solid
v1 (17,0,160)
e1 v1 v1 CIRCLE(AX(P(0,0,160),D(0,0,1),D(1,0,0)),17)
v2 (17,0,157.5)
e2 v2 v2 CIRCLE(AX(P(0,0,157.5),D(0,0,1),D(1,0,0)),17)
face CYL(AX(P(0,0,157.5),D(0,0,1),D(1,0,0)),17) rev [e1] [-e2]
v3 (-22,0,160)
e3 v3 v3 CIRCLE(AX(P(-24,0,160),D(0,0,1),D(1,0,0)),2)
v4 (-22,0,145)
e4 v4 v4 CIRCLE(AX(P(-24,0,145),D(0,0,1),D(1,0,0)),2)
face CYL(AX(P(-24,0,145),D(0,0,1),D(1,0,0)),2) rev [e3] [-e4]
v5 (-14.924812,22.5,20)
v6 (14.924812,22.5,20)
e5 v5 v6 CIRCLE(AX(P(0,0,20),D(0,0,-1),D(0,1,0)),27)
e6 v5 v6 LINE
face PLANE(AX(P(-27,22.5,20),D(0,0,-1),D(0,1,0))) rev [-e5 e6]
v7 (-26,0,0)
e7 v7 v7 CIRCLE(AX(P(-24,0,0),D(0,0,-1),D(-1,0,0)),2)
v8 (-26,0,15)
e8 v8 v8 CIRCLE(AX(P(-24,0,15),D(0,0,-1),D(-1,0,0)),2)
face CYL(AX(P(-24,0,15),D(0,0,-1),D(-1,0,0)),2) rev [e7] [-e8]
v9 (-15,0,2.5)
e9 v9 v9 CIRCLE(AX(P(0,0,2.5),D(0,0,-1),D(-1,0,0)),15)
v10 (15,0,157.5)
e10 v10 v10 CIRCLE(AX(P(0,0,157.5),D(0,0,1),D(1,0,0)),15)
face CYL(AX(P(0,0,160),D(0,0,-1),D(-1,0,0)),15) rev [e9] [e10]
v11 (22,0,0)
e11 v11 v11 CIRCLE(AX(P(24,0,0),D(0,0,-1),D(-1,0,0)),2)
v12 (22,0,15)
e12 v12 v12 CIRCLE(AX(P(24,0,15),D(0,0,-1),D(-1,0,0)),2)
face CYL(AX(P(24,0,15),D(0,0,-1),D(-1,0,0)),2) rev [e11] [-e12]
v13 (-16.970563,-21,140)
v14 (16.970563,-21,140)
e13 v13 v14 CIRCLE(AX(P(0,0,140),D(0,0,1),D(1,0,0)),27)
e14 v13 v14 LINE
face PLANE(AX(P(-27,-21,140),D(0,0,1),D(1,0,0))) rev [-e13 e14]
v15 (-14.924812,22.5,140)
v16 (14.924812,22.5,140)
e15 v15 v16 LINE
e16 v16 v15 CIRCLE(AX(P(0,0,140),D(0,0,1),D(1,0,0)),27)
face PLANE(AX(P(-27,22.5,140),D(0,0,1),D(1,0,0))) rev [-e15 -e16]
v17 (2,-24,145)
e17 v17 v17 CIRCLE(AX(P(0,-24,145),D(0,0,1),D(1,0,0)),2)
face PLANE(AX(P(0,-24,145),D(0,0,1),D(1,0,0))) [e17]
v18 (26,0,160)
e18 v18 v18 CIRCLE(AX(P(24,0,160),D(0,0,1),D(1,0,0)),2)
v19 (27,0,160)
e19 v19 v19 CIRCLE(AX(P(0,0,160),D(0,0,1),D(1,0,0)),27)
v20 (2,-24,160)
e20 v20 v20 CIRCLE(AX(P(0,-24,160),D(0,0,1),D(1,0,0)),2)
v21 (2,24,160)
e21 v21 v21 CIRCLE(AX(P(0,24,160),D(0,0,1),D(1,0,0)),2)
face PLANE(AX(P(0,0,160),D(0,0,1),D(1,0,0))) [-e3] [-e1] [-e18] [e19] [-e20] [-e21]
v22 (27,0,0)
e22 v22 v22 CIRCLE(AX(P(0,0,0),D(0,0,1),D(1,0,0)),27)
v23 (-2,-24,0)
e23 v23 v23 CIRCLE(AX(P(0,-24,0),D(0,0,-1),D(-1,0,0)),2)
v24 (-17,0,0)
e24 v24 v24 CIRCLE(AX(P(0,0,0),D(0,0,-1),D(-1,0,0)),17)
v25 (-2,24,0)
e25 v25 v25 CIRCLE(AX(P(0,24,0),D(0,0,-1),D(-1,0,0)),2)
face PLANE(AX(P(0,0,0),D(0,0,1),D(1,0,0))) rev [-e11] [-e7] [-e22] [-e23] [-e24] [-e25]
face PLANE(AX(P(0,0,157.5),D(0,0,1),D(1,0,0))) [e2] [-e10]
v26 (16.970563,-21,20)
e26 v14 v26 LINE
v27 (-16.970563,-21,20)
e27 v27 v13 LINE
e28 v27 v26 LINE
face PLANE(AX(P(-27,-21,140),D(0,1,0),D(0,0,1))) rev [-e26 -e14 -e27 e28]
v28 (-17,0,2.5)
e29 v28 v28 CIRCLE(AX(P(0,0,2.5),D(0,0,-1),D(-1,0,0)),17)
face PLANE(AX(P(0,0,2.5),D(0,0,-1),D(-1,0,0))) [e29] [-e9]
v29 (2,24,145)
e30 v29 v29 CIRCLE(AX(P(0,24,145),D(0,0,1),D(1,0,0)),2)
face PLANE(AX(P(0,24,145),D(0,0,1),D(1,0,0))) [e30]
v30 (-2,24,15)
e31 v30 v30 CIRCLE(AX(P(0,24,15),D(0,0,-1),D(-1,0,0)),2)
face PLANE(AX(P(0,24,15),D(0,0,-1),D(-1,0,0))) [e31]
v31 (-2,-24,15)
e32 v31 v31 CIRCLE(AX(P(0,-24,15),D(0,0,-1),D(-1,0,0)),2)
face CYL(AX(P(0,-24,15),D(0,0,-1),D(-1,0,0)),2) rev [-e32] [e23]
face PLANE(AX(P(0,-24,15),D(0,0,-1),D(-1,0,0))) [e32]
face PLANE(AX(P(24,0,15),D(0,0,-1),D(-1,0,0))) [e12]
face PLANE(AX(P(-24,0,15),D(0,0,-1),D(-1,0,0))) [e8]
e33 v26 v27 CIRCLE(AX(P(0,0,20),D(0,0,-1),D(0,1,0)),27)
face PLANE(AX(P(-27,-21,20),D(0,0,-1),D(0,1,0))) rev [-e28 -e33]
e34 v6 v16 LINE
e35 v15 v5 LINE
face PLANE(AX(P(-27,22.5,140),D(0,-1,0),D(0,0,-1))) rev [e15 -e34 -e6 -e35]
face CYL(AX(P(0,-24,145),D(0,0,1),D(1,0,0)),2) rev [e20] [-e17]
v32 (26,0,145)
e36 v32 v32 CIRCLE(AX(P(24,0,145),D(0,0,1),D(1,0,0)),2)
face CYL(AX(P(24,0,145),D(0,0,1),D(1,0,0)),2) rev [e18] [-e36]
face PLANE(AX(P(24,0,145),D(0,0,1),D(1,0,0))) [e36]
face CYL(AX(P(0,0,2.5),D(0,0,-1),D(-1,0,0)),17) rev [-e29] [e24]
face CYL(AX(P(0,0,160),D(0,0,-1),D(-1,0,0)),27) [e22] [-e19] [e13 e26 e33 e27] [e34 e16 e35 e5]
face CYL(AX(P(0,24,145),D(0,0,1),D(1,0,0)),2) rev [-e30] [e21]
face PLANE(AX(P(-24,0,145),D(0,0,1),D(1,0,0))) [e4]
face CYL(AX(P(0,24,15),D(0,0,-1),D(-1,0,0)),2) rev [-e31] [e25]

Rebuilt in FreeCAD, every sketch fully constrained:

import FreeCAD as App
import Part
import Sketcher
Q = App.Units.Quantity

doc = App.newDocument("Part")
body = doc.addObject("PartDesign::Body", "Body")

sketch1 = doc.addObject("Sketcher::SketchObject", "Sketch")
body.addObject(sketch1)
sketch1.AttachmentSupport = (doc.XY_Plane, [""])
sketch1.MapMode = "FlatFace"
sketch1.addGeometry(Part.Circle(App.Vector(0, 0, 0), App.Vector(0, 0, 1), 27), False)
sketch1.addGeometry(Part.Circle(App.Vector(0, 0, 0), App.Vector(0, 0, 1), 15), False)
sketch1.addConstraint(Sketcher.Constraint("Coincident", 0, 3, -1, 1))
sketch1.addConstraint(Sketcher.Constraint("Coincident", 1, 3, -1, 1))
sketch1.addConstraint(Sketcher.Constraint("Diameter", 0, Q("54 mm")))
sketch1.addConstraint(Sketcher.Constraint("Diameter", 1, Q("30 mm")))
pad1 = doc.addObject("PartDesign::Pad", "Pad")
body.addObject(pad1)
pad1.Profile = sketch1
pad1.Length = 160

sketch2 = doc.addObject("Sketcher::SketchObject", "Sketch001")
body.addObject(sketch2)
sketch2.AttachmentSupport = (doc.XY_Plane, [""])
sketch2.MapMode = "FlatFace"
sketch2.AttachmentOffset = App.Placement(App.Vector(0, 0, 160), App.Rotation())
sketch2.addGeometry(Part.Circle(App.Vector(0, 24, 0), App.Vector(0, 0, 1), 2), False)
sketch2.addGeometry(Part.Circle(App.Vector(24, 0, 0), App.Vector(0, 0, 1), 2), False)
sketch2.addGeometry(Part.Circle(App.Vector(0, -24, 0), App.Vector(0, 0, 1), 2), False)
sketch2.addGeometry(Part.Circle(App.Vector(-24, 0, 0), App.Vector(0, 0, 1), 2), False)
sketch2.addConstraint(Sketcher.Constraint("Equal", 0, 1))
sketch2.addConstraint(Sketcher.Constraint("Equal", 1, 2))
sketch2.addConstraint(Sketcher.Constraint("Equal", 2, 3))
sketch2.addConstraint(Sketcher.Constraint("Symmetric", 0, 3, 2, 3, -1, 1))
sketch2.addConstraint(Sketcher.Constraint("Symmetric", 1, 3, 3, 3, -1, 1))
sketch2.addConstraint(Sketcher.Constraint("PointOnObject", 0, 3, -2))
sketch2.addConstraint(Sketcher.Constraint("PointOnObject", 1, 3, -1))
sketch2.addConstraint(Sketcher.Constraint("Diameter", 0, Q("4 mm")))
sketch2.addConstraint(Sketcher.Constraint("DistanceY", -1, 1, 0, 3, Q("24 mm")))
sketch2.addConstraint(Sketcher.Constraint("DistanceX", -1, 1, 1, 3, Q("24 mm")))
pocket1 = doc.addObject("PartDesign::Pocket", "Pocket")
body.addObject(pocket1)
pocket1.Profile = sketch2
pocket1.Length = 15

sketch3 = doc.addObject("Sketcher::SketchObject", "Sketch002")
body.addObject(sketch3)
sketch3.AttachmentSupport = (doc.XY_Plane, [""])
sketch3.MapMode = "FlatFace"
sketch3.addGeometry(Part.Circle(App.Vector(0, 24, 0), App.Vector(0, 0, 1), 2), False)
sketch3.addGeometry(Part.Circle(App.Vector(-24, 0, 0), App.Vector(0, 0, 1), 2), False)
sketch3.addGeometry(Part.Circle(App.Vector(0, -24, 0), App.Vector(0, 0, 1), 2), False)
sketch3.addGeometry(Part.Circle(App.Vector(24, 0, 0), App.Vector(0, 0, 1), 2), False)
sketch3.addConstraint(Sketcher.Constraint("Equal", 0, 1))
sketch3.addConstraint(Sketcher.Constraint("Equal", 1, 2))
sketch3.addConstraint(Sketcher.Constraint("Equal", 2, 3))
sketch3.addConstraint(Sketcher.Constraint("Symmetric", 0, 3, 2, 3, -1, 1))
sketch3.addConstraint(Sketcher.Constraint("Symmetric", 1, 3, 3, 3, -1, 1))
sketch3.addConstraint(Sketcher.Constraint("PointOnObject", 0, 3, -2))
sketch3.addConstraint(Sketcher.Constraint("PointOnObject", 1, 3, -1))
sketch3.addConstraint(Sketcher.Constraint("Diameter", 0, Q("4 mm")))
sketch3.addConstraint(Sketcher.Constraint("DistanceY", -1, 1, 0, 3, Q("24 mm")))
sketch3.addConstraint(Sketcher.Constraint("DistanceX", 1, 3, -1, 1, Q("24 mm")))
pocket2 = doc.addObject("PartDesign::Pocket", "Pocket001")
body.addObject(pocket2)
pocket2.Profile = sketch3
pocket2.Length = 15
pocket2.Reversed = True

sketch4 = doc.addObject("Sketcher::SketchObject", "Sketch003")
body.addObject(sketch4)
sketch4.AttachmentSupport = (doc.XY_Plane, [""])
sketch4.MapMode = "FlatFace"
sketch4.AttachmentOffset = App.Placement(App.Vector(0, 0, 160), App.Rotation())
sketch4.addGeometry(Part.Circle(App.Vector(0, 0, 0), App.Vector(0, 0, 1), 17), False)
sketch4.addGeometry(Part.Circle(App.Vector(0, 0, 0), App.Vector(0, 0, 1), 15), False)
sketch4.addConstraint(Sketcher.Constraint("Coincident", 0, 3, -1, 1))
sketch4.addConstraint(Sketcher.Constraint("Coincident", 1, 3, -1, 1))
sketch4.addConstraint(Sketcher.Constraint("Diameter", 0, Q("34 mm")))
sketch4.addConstraint(Sketcher.Constraint("Diameter", 1, Q("30 mm")))
pocket3 = doc.addObject("PartDesign::Pocket", "Pocket002")
body.addObject(pocket3)
pocket3.Profile = sketch4
pocket3.Length = 2.5

sketch5 = doc.addObject("Sketcher::SketchObject", "Sketch004")
body.addObject(sketch5)
sketch5.AttachmentSupport = (doc.XY_Plane, [""])
sketch5.MapMode = "FlatFace"
sketch5.addGeometry(Part.Circle(App.Vector(0, 0, 0), App.Vector(0, 0, 1), 17), False)
sketch5.addGeometry(Part.Circle(App.Vector(0, 0, 0), App.Vector(0, 0, 1), 15), False)
sketch5.addConstraint(Sketcher.Constraint("Coincident", 0, 3, -1, 1))
sketch5.addConstraint(Sketcher.Constraint("Coincident", 1, 3, -1, 1))
sketch5.addConstraint(Sketcher.Constraint("Diameter", 0, Q("34 mm")))
sketch5.addConstraint(Sketcher.Constraint("Diameter", 1, Q("30 mm")))
pocket4 = doc.addObject("PartDesign::Pocket", "Pocket003")
body.addObject(pocket4)
pocket4.Profile = sketch5
pocket4.Length = 2.5
pocket4.Reversed = True

sketch6 = doc.addObject("Sketcher::SketchObject", "Sketch005")
body.addObject(sketch6)
sketch6.AttachmentSupport = (doc.YZ_Plane, [""])
sketch6.MapMode = "FlatFace"
sketch6.addGeometry(Part.LineSegment(App.Vector(27, 140, 0), App.Vector(22.5, 140, 0)), False)
sketch6.addGeometry(Part.LineSegment(App.Vector(22.5, 140, 0), App.Vector(22.5, 20, 0)), False)
sketch6.addGeometry(Part.LineSegment(App.Vector(22.5, 20, 0), App.Vector(27, 20, 0)), False)
sketch6.addGeometry(Part.LineSegment(App.Vector(27, 20, 0), App.Vector(27, 140, 0)), False)
sketch6.addGeometry(Part.LineSegment(App.Vector(-21, 140, 0), App.Vector(-27, 140, 0)), False)
sketch6.addGeometry(Part.LineSegment(App.Vector(-27, 140, 0), App.Vector(-27, 20, 0)), False)
sketch6.addGeometry(Part.LineSegment(App.Vector(-27, 20, 0), App.Vector(-21, 20, 0)), False)
sketch6.addGeometry(Part.LineSegment(App.Vector(-21, 20, 0), App.Vector(-21, 140, 0)), False)
sketch6.addConstraint(Sketcher.Constraint("Coincident", 0, 2, 1, 1))
sketch6.addConstraint(Sketcher.Constraint("Coincident", 1, 2, 2, 1))
sketch6.addConstraint(Sketcher.Constraint("Coincident", 2, 2, 3, 1))
sketch6.addConstraint(Sketcher.Constraint("Coincident", 3, 2, 0, 1))
sketch6.addConstraint(Sketcher.Constraint("Coincident", 4, 2, 5, 1))
sketch6.addConstraint(Sketcher.Constraint("Coincident", 5, 2, 6, 1))
sketch6.addConstraint(Sketcher.Constraint("Coincident", 6, 2, 7, 1))
sketch6.addConstraint(Sketcher.Constraint("Coincident", 7, 2, 4, 1))
sketch6.addConstraint(Sketcher.Constraint("Horizontal", 0))
sketch6.addConstraint(Sketcher.Constraint("Vertical", 1))
sketch6.addConstraint(Sketcher.Constraint("Horizontal", 2))
sketch6.addConstraint(Sketcher.Constraint("Vertical", 3))
sketch6.addConstraint(Sketcher.Constraint("Horizontal", 4))
sketch6.addConstraint(Sketcher.Constraint("Vertical", 5))
sketch6.addConstraint(Sketcher.Constraint("Horizontal", 6))
sketch6.addConstraint(Sketcher.Constraint("Vertical", 7))
sketch6.addConstraint(Sketcher.Constraint("Symmetric", 3, 2, 4, 2, -2))
sketch6.addConstraint(Sketcher.Constraint("Horizontal", 2, 2, 5, 2))
sketch6.addConstraint(Sketcher.Constraint("DistanceX", 4, 2, 4, 1, Q("6 mm")))
sketch6.addConstraint(Sketcher.Constraint("DistanceY", 1, 2, 1, 1, Q("120 mm")))
sketch6.addConstraint(Sketcher.Constraint("DistanceX", 0, 2, 0, 1, Q("4.5 mm")))
sketch6.addConstraint(Sketcher.Constraint("DistanceY", -1, 1, 0, 2, Q("140 mm")))
sketch6.addConstraint(Sketcher.Constraint("DistanceX", -1, 1, 2, 2, Q("27 mm")))
pocket5 = doc.addObject("PartDesign::Pocket", "Pocket004")
body.addObject(pocket5)
pocket5.Profile = sketch6
pocket5.Type = "ThroughAll"
pocket5.Midplane = True

doc.recompute()
